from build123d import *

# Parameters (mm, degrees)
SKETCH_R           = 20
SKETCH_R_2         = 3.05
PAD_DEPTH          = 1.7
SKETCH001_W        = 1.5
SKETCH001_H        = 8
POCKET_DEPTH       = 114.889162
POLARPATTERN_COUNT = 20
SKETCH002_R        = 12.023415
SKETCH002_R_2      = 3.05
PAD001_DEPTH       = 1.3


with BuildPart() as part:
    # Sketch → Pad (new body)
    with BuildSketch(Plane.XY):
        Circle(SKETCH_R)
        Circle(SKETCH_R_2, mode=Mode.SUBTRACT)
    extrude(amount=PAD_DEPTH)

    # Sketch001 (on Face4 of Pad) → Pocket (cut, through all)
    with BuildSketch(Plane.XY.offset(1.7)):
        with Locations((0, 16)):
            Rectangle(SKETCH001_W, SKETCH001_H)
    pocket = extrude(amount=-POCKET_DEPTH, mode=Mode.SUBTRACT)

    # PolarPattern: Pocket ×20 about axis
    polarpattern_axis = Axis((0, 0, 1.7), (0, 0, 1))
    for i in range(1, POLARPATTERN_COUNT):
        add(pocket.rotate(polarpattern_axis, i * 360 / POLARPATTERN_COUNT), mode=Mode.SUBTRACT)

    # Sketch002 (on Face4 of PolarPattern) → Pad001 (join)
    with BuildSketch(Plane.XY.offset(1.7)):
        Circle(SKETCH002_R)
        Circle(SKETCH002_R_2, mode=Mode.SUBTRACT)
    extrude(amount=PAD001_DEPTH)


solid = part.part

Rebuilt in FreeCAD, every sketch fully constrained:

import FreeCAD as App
import Part
import Sketcher
from FreeCAD import Vector
Q = App.Units.Quantity

doc = App.newDocument("Part")
body = doc.addObject("PartDesign::Body", "Body")

sketch1 = doc.addObject("Sketcher::SketchObject", "Sketch")
body.addObject(sketch1)
sketch1.AttachmentSupport = (doc.XY_Plane, [""])
sketch1.MapMode = "FlatFace"
sketch1.addGeometry([
    Part.Circle(Vector(0, 0, 0), Vector(0, 0, 1), 20),
    Part.Circle(Vector(0, 0, 0), Vector(0, 0, 1), 3),
], False)
sketch1.addConstraint([
    Sketcher.Constraint("Coincident", 0, 3, -1, 1),
    Sketcher.Constraint("Coincident", 1, 3, -1, 1),
    Sketcher.Constraint("Diameter", 0, Q("40 mm")),
    Sketcher.Constraint("Diameter", 1, Q("6.1 mm")),
])
pad1 = doc.addObject("PartDesign::Pad", "Pad")
body.addObject(pad1)
pad1.Profile = sketch1
pad1.Length = 1.7

sketch2 = doc.addObject("Sketcher::SketchObject", "Sketch001")
body.addObject(sketch2)
sketch2.AttachmentSupport = (doc.XY_Plane, [""])
sketch2.MapMode = "FlatFace"
sketch2.AttachmentOffset = App.Placement(Vector(0, 0, 1.7), App.Rotation())
sketch2.addGeometry([
    Part.LineSegment(Vector(-0.8, 20, 0), Vector(-0.8, 12, 0)),
    Part.LineSegment(Vector(-0.8, 12, 0), Vector(0.8, 12, 0)),
    Part.LineSegment(Vector(0.8, 12, 0), Vector(0.8, 20, 0)),
    Part.LineSegment(Vector(0.8, 20, 0), Vector(-0.8, 20, 0)),
], False)
sketch2.addConstraint([
    Sketcher.Constraint("Coincident", 0, 2, 1, 1),
    Sketcher.Constraint("Coincident", 1, 2, 2, 1),
    Sketcher.Constraint("Coincident", 2, 2, 3, 1),
    Sketcher.Constraint("Coincident", 3, 2, 0, 1),
    Sketcher.Constraint("Vertical", 0),
    Sketcher.Constraint("Horizontal", 1),
    Sketcher.Constraint("Vertical", 2),
    Sketcher.Constraint("Horizontal", 3),
    Sketcher.Constraint("DistanceY", 0, 2, 0, 1, Q("8 mm")),
    Sketcher.Constraint("DistanceX", 1, 1, 1, 2, Q("1.5 mm")),
    Sketcher.Constraint("DistanceY", -1, 1, 0, 2, Q("12 mm")),
    Sketcher.Constraint("DistanceX", 0, 2, -1, 1, Q("0.75 mm")),
])
pocket1 = doc.addObject("PartDesign::Pocket", "Pocket")
body.addObject(pocket1)
pocket1.Profile = sketch2
pocket1.Type = "ThroughAll"
doc.recompute()

polarpattern = doc.addObject("PartDesign::PolarPattern", "PolarPattern")
body.addObject(polarpattern)
polarpattern.Originals = [pocket1]
polarpattern.Axis = (doc.Z_Axis, [""])
polarpattern.Angle = 360
polarpattern.Occurrences = 20
body.Tip = polarpattern

sketch3 = doc.addObject("Sketcher::SketchObject", "Sketch002")
body.addObject(sketch3)
sketch3.AttachmentSupport = (doc.XY_Plane, [""])
sketch3.MapMode = "FlatFace"
sketch3.AttachmentOffset = App.Placement(Vector(0, 0, 1.7), App.Rotation())
sketch3.addGeometry([
    Part.Circle(Vector(0, 0, 0), Vector(0, 0, 1), 12),
    Part.Circle(Vector(0, 0, 0), Vector(0, 0, 1), 3),
], False)
sketch3.addConstraint([
    Sketcher.Constraint("Coincident", 0, 3, -1, 1),
    Sketcher.Constraint("Coincident", 1, 3, -1, 1),
    Sketcher.Constraint("Diameter", 1, Q("6.1 mm")),
    Sketcher.Constraint("Diameter", 0, Q("24.04683 mm")),
])
pad2 = doc.addObject("PartDesign::Pad", "Pad001")
body.addObject(pad2)
pad2.Profile = sketch3
pad2.Length = 1.3

doc.recompute()
